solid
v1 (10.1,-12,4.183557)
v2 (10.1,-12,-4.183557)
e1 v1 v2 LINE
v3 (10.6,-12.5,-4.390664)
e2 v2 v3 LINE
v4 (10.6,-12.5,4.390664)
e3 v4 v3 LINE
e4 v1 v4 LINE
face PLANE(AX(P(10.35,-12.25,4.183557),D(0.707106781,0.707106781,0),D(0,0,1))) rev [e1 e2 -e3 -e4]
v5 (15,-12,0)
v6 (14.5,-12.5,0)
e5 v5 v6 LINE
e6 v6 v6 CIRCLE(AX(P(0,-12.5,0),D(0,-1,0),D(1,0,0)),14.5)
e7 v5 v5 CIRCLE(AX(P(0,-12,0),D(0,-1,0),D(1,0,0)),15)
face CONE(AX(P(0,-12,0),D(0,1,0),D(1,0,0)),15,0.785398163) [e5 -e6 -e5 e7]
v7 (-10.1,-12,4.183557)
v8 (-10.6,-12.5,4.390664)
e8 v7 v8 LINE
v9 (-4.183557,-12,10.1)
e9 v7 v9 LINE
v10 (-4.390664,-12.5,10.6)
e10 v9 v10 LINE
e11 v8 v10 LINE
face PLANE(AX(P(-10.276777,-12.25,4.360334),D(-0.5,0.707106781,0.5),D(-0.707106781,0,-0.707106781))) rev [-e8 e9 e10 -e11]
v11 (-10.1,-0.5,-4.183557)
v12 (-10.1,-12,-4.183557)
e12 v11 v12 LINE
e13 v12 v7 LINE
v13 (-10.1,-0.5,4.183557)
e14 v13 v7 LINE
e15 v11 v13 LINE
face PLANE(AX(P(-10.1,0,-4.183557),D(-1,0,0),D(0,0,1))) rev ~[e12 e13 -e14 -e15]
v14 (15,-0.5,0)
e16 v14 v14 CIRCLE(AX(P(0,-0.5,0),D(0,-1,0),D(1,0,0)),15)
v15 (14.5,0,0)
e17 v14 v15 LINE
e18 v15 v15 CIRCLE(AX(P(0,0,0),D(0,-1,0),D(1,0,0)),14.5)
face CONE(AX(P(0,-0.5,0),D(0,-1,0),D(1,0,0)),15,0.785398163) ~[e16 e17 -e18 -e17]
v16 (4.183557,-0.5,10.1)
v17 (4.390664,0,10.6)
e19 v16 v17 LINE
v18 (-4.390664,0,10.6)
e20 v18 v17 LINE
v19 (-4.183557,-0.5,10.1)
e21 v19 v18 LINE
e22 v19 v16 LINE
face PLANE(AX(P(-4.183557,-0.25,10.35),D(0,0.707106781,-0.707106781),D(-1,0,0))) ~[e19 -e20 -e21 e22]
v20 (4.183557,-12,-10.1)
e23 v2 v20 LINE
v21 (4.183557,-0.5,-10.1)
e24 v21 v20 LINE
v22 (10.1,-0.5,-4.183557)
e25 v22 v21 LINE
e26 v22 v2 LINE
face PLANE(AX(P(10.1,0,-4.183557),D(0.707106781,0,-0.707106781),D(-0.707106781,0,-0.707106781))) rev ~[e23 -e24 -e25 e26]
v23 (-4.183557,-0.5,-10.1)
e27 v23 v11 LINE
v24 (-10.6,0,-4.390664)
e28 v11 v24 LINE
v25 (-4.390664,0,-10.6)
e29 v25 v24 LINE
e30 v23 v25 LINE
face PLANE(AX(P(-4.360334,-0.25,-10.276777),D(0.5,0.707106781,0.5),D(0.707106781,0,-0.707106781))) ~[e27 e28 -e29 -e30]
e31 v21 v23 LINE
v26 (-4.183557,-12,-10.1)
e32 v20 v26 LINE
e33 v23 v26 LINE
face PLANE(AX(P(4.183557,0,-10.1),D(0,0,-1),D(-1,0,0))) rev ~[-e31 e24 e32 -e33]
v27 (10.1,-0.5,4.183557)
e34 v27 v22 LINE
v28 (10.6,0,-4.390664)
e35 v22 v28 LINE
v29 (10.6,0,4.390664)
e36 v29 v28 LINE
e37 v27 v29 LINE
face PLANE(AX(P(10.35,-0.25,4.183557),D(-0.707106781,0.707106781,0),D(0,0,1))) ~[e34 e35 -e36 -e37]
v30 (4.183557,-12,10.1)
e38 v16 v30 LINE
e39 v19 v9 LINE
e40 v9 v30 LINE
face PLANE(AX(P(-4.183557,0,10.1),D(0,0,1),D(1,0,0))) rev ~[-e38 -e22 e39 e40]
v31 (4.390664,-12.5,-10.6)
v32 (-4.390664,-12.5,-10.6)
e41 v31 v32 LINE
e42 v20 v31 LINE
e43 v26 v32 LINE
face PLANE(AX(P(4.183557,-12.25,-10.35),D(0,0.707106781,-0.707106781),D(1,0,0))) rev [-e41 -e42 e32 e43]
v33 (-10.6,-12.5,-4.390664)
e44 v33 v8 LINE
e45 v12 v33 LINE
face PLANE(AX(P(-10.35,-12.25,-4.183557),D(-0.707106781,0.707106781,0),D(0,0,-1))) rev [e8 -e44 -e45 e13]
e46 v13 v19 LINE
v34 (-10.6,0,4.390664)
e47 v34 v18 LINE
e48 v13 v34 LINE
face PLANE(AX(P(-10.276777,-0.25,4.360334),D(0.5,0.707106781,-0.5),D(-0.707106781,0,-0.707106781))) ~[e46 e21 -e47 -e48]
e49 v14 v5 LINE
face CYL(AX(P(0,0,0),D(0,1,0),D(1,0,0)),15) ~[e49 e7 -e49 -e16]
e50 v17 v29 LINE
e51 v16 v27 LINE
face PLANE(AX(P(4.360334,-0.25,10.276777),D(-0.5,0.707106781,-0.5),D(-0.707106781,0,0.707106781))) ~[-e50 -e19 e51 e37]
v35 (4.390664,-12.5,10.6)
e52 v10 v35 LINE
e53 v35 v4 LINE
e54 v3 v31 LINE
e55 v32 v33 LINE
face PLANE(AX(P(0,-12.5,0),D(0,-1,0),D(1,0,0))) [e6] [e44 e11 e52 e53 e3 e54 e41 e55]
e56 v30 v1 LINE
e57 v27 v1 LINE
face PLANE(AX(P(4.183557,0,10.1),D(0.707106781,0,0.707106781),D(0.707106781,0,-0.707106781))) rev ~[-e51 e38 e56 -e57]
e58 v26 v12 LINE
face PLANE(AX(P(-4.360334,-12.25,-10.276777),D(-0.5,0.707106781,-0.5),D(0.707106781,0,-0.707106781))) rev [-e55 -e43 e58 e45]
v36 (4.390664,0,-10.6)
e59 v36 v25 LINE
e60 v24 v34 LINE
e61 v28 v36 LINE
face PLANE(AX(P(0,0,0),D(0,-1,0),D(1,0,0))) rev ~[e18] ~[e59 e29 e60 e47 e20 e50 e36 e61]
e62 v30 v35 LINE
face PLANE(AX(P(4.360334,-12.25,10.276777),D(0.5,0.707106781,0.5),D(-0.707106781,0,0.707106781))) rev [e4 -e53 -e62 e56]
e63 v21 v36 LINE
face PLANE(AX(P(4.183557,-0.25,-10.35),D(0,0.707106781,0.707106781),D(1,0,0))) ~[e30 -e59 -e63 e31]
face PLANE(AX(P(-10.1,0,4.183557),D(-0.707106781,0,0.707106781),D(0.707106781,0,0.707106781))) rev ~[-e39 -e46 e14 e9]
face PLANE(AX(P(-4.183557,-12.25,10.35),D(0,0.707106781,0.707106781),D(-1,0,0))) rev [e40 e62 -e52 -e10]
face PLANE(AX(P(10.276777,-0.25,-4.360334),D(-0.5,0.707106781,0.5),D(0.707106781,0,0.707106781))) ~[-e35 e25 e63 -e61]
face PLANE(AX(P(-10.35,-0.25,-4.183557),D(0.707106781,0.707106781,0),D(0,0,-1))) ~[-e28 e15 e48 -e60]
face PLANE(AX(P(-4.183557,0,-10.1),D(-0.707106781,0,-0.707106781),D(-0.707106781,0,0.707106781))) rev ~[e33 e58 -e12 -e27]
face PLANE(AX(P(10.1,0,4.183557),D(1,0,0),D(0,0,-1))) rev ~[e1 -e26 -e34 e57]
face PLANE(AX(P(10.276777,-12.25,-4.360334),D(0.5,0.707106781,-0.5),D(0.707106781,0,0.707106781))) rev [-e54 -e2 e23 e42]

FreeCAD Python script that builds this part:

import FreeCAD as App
import Part
import Sketcher
from FreeCAD import Vector
Q = App.Units.Quantity


def edges_at(feature, points):
    """Names of the edges that pass closest to the given points."""
    edges = feature.Shape.Edges
    near = lambda p: min(range(len(edges)), key=lambda i: edges[i].distToShape(Part.Vertex(*p))[0])
    return sorted({f"Edge{near(p) + 1}" for p in points})

doc = App.newDocument("Part")
body = doc.addObject("PartDesign::Body", "Body")

# Sketch on XZ plane
sketch1 = body.newObject("Sketcher::SketchObject", "Sketch")
sketch1.AttachmentSupport = (doc.getObject("XZ_Plane"), [""])
sketch1.MapMode = "FlatFace"
sketch1.addGeometry([
    Part.Circle(Vector(0, 0, 0), Vector(0, 0, 1), 15),  # 0
    Part.LineSegment(Vector(4, -10, 0), Vector(-4, -10, 0)),  # 1
    Part.LineSegment(Vector(-4, -10, 0), Vector(-10, -4, 0)),  # 2
    Part.LineSegment(Vector(-10, -4, 0), Vector(-10, 4, 0)),  # 3
    Part.LineSegment(Vector(-10, 4, 0), Vector(-4, 10, 0)),  # 4
    Part.LineSegment(Vector(-4, 10, 0), Vector(4, 10, 0)),  # 5
    Part.LineSegment(Vector(4, 10, 0), Vector(10, 4, 0)),  # 6
    Part.LineSegment(Vector(10, 4, 0), Vector(10, -4, 0)),  # 7
    Part.LineSegment(Vector(10, -4, 0), Vector(4, -10, 0)),  # 8
], False)
sketch1.addConstraint([
    Sketcher.Constraint("Coincident", 1, 2, 2, 1),
    Sketcher.Constraint("Coincident", 2, 2, 3, 1),
    Sketcher.Constraint("Coincident", 3, 2, 4, 1),
    Sketcher.Constraint("Coincident", 4, 2, 5, 1),
    Sketcher.Constraint("Coincident", 5, 2, 6, 1),
    Sketcher.Constraint("Coincident", 6, 2, 7, 1),
    Sketcher.Constraint("Coincident", 7, 2, 8, 1),
    Sketcher.Constraint("Coincident", 8, 2, 1, 1),
    Sketcher.Constraint("Horizontal", 1),
    Sketcher.Constraint("Vertical", 3),
    Sketcher.Constraint("Horizontal", 5),
    Sketcher.Constraint("Vertical", 7),
    Sketcher.Constraint("Coincident", 0, 3, -1, 1),
    Sketcher.Constraint("Symmetric", 1, 2, 5, 2, -1, 1),
    Sketcher.Constraint("Symmetric", 2, 2, 6, 2, -1, 1),
    Sketcher.Constraint("Perpendicular", 2, 4),
    Sketcher.Constraint("Perpendicular", 6, 8),
    Sketcher.Constraint("Horizontal", 3, 2, 6, 2),
    Sketcher.Constraint("Horizontal", 2, 2, 7, 2),
    Sketcher.Constraint("Vertical", 1, 2, 4, 2),
    Sketcher.Constraint("Equal", 5, 3),
    Sketcher.Constraint("Diameter", 0, Q("30 mm")),
    Sketcher.Constraint("DistanceY", 1, 2, -1, 1, Q("10.1 mm")),
    Sketcher.Constraint("DistanceX", 1, 2, 1, 1, Q("8.367114 mm")),
])
pad1 = body.newObject("PartDesign::Pad", "Pad")
pad1.Profile = sketch1
pad1.Length = 12.5
doc.recompute()

chamfer = body.newObject("PartDesign::Chamfer", "Chamfer")
chamfer.Base = (pad1, edges_at(pad1, [
    (-15, -12.5, 0),
    (-7.142, -12.5, -7.142),
    (-10.1, -12.5, 0),
    (-7.142, -12.5, 7.142),
    (0, -12.5, 10.1),
    (7.142, -12.5, 7.142),
    (10.1, -12.5, 0),
    (7.142, -12.5, -7.142),
    (0, -12.5, -10.1),
    (-15, 0, 0),
    (-7.142, 0, -7.142),
    (-10.1, 0, 0),
    (-7.142, 0, 7.142),
    (0, 0, 10.1),
    (7.142, 0, 7.142),
    (10.1, 0, 0),
    (7.142, 0, -7.142),
    (0, 0, -10.1),
]))
chamfer.Size = 0.5

doc.recompute()
